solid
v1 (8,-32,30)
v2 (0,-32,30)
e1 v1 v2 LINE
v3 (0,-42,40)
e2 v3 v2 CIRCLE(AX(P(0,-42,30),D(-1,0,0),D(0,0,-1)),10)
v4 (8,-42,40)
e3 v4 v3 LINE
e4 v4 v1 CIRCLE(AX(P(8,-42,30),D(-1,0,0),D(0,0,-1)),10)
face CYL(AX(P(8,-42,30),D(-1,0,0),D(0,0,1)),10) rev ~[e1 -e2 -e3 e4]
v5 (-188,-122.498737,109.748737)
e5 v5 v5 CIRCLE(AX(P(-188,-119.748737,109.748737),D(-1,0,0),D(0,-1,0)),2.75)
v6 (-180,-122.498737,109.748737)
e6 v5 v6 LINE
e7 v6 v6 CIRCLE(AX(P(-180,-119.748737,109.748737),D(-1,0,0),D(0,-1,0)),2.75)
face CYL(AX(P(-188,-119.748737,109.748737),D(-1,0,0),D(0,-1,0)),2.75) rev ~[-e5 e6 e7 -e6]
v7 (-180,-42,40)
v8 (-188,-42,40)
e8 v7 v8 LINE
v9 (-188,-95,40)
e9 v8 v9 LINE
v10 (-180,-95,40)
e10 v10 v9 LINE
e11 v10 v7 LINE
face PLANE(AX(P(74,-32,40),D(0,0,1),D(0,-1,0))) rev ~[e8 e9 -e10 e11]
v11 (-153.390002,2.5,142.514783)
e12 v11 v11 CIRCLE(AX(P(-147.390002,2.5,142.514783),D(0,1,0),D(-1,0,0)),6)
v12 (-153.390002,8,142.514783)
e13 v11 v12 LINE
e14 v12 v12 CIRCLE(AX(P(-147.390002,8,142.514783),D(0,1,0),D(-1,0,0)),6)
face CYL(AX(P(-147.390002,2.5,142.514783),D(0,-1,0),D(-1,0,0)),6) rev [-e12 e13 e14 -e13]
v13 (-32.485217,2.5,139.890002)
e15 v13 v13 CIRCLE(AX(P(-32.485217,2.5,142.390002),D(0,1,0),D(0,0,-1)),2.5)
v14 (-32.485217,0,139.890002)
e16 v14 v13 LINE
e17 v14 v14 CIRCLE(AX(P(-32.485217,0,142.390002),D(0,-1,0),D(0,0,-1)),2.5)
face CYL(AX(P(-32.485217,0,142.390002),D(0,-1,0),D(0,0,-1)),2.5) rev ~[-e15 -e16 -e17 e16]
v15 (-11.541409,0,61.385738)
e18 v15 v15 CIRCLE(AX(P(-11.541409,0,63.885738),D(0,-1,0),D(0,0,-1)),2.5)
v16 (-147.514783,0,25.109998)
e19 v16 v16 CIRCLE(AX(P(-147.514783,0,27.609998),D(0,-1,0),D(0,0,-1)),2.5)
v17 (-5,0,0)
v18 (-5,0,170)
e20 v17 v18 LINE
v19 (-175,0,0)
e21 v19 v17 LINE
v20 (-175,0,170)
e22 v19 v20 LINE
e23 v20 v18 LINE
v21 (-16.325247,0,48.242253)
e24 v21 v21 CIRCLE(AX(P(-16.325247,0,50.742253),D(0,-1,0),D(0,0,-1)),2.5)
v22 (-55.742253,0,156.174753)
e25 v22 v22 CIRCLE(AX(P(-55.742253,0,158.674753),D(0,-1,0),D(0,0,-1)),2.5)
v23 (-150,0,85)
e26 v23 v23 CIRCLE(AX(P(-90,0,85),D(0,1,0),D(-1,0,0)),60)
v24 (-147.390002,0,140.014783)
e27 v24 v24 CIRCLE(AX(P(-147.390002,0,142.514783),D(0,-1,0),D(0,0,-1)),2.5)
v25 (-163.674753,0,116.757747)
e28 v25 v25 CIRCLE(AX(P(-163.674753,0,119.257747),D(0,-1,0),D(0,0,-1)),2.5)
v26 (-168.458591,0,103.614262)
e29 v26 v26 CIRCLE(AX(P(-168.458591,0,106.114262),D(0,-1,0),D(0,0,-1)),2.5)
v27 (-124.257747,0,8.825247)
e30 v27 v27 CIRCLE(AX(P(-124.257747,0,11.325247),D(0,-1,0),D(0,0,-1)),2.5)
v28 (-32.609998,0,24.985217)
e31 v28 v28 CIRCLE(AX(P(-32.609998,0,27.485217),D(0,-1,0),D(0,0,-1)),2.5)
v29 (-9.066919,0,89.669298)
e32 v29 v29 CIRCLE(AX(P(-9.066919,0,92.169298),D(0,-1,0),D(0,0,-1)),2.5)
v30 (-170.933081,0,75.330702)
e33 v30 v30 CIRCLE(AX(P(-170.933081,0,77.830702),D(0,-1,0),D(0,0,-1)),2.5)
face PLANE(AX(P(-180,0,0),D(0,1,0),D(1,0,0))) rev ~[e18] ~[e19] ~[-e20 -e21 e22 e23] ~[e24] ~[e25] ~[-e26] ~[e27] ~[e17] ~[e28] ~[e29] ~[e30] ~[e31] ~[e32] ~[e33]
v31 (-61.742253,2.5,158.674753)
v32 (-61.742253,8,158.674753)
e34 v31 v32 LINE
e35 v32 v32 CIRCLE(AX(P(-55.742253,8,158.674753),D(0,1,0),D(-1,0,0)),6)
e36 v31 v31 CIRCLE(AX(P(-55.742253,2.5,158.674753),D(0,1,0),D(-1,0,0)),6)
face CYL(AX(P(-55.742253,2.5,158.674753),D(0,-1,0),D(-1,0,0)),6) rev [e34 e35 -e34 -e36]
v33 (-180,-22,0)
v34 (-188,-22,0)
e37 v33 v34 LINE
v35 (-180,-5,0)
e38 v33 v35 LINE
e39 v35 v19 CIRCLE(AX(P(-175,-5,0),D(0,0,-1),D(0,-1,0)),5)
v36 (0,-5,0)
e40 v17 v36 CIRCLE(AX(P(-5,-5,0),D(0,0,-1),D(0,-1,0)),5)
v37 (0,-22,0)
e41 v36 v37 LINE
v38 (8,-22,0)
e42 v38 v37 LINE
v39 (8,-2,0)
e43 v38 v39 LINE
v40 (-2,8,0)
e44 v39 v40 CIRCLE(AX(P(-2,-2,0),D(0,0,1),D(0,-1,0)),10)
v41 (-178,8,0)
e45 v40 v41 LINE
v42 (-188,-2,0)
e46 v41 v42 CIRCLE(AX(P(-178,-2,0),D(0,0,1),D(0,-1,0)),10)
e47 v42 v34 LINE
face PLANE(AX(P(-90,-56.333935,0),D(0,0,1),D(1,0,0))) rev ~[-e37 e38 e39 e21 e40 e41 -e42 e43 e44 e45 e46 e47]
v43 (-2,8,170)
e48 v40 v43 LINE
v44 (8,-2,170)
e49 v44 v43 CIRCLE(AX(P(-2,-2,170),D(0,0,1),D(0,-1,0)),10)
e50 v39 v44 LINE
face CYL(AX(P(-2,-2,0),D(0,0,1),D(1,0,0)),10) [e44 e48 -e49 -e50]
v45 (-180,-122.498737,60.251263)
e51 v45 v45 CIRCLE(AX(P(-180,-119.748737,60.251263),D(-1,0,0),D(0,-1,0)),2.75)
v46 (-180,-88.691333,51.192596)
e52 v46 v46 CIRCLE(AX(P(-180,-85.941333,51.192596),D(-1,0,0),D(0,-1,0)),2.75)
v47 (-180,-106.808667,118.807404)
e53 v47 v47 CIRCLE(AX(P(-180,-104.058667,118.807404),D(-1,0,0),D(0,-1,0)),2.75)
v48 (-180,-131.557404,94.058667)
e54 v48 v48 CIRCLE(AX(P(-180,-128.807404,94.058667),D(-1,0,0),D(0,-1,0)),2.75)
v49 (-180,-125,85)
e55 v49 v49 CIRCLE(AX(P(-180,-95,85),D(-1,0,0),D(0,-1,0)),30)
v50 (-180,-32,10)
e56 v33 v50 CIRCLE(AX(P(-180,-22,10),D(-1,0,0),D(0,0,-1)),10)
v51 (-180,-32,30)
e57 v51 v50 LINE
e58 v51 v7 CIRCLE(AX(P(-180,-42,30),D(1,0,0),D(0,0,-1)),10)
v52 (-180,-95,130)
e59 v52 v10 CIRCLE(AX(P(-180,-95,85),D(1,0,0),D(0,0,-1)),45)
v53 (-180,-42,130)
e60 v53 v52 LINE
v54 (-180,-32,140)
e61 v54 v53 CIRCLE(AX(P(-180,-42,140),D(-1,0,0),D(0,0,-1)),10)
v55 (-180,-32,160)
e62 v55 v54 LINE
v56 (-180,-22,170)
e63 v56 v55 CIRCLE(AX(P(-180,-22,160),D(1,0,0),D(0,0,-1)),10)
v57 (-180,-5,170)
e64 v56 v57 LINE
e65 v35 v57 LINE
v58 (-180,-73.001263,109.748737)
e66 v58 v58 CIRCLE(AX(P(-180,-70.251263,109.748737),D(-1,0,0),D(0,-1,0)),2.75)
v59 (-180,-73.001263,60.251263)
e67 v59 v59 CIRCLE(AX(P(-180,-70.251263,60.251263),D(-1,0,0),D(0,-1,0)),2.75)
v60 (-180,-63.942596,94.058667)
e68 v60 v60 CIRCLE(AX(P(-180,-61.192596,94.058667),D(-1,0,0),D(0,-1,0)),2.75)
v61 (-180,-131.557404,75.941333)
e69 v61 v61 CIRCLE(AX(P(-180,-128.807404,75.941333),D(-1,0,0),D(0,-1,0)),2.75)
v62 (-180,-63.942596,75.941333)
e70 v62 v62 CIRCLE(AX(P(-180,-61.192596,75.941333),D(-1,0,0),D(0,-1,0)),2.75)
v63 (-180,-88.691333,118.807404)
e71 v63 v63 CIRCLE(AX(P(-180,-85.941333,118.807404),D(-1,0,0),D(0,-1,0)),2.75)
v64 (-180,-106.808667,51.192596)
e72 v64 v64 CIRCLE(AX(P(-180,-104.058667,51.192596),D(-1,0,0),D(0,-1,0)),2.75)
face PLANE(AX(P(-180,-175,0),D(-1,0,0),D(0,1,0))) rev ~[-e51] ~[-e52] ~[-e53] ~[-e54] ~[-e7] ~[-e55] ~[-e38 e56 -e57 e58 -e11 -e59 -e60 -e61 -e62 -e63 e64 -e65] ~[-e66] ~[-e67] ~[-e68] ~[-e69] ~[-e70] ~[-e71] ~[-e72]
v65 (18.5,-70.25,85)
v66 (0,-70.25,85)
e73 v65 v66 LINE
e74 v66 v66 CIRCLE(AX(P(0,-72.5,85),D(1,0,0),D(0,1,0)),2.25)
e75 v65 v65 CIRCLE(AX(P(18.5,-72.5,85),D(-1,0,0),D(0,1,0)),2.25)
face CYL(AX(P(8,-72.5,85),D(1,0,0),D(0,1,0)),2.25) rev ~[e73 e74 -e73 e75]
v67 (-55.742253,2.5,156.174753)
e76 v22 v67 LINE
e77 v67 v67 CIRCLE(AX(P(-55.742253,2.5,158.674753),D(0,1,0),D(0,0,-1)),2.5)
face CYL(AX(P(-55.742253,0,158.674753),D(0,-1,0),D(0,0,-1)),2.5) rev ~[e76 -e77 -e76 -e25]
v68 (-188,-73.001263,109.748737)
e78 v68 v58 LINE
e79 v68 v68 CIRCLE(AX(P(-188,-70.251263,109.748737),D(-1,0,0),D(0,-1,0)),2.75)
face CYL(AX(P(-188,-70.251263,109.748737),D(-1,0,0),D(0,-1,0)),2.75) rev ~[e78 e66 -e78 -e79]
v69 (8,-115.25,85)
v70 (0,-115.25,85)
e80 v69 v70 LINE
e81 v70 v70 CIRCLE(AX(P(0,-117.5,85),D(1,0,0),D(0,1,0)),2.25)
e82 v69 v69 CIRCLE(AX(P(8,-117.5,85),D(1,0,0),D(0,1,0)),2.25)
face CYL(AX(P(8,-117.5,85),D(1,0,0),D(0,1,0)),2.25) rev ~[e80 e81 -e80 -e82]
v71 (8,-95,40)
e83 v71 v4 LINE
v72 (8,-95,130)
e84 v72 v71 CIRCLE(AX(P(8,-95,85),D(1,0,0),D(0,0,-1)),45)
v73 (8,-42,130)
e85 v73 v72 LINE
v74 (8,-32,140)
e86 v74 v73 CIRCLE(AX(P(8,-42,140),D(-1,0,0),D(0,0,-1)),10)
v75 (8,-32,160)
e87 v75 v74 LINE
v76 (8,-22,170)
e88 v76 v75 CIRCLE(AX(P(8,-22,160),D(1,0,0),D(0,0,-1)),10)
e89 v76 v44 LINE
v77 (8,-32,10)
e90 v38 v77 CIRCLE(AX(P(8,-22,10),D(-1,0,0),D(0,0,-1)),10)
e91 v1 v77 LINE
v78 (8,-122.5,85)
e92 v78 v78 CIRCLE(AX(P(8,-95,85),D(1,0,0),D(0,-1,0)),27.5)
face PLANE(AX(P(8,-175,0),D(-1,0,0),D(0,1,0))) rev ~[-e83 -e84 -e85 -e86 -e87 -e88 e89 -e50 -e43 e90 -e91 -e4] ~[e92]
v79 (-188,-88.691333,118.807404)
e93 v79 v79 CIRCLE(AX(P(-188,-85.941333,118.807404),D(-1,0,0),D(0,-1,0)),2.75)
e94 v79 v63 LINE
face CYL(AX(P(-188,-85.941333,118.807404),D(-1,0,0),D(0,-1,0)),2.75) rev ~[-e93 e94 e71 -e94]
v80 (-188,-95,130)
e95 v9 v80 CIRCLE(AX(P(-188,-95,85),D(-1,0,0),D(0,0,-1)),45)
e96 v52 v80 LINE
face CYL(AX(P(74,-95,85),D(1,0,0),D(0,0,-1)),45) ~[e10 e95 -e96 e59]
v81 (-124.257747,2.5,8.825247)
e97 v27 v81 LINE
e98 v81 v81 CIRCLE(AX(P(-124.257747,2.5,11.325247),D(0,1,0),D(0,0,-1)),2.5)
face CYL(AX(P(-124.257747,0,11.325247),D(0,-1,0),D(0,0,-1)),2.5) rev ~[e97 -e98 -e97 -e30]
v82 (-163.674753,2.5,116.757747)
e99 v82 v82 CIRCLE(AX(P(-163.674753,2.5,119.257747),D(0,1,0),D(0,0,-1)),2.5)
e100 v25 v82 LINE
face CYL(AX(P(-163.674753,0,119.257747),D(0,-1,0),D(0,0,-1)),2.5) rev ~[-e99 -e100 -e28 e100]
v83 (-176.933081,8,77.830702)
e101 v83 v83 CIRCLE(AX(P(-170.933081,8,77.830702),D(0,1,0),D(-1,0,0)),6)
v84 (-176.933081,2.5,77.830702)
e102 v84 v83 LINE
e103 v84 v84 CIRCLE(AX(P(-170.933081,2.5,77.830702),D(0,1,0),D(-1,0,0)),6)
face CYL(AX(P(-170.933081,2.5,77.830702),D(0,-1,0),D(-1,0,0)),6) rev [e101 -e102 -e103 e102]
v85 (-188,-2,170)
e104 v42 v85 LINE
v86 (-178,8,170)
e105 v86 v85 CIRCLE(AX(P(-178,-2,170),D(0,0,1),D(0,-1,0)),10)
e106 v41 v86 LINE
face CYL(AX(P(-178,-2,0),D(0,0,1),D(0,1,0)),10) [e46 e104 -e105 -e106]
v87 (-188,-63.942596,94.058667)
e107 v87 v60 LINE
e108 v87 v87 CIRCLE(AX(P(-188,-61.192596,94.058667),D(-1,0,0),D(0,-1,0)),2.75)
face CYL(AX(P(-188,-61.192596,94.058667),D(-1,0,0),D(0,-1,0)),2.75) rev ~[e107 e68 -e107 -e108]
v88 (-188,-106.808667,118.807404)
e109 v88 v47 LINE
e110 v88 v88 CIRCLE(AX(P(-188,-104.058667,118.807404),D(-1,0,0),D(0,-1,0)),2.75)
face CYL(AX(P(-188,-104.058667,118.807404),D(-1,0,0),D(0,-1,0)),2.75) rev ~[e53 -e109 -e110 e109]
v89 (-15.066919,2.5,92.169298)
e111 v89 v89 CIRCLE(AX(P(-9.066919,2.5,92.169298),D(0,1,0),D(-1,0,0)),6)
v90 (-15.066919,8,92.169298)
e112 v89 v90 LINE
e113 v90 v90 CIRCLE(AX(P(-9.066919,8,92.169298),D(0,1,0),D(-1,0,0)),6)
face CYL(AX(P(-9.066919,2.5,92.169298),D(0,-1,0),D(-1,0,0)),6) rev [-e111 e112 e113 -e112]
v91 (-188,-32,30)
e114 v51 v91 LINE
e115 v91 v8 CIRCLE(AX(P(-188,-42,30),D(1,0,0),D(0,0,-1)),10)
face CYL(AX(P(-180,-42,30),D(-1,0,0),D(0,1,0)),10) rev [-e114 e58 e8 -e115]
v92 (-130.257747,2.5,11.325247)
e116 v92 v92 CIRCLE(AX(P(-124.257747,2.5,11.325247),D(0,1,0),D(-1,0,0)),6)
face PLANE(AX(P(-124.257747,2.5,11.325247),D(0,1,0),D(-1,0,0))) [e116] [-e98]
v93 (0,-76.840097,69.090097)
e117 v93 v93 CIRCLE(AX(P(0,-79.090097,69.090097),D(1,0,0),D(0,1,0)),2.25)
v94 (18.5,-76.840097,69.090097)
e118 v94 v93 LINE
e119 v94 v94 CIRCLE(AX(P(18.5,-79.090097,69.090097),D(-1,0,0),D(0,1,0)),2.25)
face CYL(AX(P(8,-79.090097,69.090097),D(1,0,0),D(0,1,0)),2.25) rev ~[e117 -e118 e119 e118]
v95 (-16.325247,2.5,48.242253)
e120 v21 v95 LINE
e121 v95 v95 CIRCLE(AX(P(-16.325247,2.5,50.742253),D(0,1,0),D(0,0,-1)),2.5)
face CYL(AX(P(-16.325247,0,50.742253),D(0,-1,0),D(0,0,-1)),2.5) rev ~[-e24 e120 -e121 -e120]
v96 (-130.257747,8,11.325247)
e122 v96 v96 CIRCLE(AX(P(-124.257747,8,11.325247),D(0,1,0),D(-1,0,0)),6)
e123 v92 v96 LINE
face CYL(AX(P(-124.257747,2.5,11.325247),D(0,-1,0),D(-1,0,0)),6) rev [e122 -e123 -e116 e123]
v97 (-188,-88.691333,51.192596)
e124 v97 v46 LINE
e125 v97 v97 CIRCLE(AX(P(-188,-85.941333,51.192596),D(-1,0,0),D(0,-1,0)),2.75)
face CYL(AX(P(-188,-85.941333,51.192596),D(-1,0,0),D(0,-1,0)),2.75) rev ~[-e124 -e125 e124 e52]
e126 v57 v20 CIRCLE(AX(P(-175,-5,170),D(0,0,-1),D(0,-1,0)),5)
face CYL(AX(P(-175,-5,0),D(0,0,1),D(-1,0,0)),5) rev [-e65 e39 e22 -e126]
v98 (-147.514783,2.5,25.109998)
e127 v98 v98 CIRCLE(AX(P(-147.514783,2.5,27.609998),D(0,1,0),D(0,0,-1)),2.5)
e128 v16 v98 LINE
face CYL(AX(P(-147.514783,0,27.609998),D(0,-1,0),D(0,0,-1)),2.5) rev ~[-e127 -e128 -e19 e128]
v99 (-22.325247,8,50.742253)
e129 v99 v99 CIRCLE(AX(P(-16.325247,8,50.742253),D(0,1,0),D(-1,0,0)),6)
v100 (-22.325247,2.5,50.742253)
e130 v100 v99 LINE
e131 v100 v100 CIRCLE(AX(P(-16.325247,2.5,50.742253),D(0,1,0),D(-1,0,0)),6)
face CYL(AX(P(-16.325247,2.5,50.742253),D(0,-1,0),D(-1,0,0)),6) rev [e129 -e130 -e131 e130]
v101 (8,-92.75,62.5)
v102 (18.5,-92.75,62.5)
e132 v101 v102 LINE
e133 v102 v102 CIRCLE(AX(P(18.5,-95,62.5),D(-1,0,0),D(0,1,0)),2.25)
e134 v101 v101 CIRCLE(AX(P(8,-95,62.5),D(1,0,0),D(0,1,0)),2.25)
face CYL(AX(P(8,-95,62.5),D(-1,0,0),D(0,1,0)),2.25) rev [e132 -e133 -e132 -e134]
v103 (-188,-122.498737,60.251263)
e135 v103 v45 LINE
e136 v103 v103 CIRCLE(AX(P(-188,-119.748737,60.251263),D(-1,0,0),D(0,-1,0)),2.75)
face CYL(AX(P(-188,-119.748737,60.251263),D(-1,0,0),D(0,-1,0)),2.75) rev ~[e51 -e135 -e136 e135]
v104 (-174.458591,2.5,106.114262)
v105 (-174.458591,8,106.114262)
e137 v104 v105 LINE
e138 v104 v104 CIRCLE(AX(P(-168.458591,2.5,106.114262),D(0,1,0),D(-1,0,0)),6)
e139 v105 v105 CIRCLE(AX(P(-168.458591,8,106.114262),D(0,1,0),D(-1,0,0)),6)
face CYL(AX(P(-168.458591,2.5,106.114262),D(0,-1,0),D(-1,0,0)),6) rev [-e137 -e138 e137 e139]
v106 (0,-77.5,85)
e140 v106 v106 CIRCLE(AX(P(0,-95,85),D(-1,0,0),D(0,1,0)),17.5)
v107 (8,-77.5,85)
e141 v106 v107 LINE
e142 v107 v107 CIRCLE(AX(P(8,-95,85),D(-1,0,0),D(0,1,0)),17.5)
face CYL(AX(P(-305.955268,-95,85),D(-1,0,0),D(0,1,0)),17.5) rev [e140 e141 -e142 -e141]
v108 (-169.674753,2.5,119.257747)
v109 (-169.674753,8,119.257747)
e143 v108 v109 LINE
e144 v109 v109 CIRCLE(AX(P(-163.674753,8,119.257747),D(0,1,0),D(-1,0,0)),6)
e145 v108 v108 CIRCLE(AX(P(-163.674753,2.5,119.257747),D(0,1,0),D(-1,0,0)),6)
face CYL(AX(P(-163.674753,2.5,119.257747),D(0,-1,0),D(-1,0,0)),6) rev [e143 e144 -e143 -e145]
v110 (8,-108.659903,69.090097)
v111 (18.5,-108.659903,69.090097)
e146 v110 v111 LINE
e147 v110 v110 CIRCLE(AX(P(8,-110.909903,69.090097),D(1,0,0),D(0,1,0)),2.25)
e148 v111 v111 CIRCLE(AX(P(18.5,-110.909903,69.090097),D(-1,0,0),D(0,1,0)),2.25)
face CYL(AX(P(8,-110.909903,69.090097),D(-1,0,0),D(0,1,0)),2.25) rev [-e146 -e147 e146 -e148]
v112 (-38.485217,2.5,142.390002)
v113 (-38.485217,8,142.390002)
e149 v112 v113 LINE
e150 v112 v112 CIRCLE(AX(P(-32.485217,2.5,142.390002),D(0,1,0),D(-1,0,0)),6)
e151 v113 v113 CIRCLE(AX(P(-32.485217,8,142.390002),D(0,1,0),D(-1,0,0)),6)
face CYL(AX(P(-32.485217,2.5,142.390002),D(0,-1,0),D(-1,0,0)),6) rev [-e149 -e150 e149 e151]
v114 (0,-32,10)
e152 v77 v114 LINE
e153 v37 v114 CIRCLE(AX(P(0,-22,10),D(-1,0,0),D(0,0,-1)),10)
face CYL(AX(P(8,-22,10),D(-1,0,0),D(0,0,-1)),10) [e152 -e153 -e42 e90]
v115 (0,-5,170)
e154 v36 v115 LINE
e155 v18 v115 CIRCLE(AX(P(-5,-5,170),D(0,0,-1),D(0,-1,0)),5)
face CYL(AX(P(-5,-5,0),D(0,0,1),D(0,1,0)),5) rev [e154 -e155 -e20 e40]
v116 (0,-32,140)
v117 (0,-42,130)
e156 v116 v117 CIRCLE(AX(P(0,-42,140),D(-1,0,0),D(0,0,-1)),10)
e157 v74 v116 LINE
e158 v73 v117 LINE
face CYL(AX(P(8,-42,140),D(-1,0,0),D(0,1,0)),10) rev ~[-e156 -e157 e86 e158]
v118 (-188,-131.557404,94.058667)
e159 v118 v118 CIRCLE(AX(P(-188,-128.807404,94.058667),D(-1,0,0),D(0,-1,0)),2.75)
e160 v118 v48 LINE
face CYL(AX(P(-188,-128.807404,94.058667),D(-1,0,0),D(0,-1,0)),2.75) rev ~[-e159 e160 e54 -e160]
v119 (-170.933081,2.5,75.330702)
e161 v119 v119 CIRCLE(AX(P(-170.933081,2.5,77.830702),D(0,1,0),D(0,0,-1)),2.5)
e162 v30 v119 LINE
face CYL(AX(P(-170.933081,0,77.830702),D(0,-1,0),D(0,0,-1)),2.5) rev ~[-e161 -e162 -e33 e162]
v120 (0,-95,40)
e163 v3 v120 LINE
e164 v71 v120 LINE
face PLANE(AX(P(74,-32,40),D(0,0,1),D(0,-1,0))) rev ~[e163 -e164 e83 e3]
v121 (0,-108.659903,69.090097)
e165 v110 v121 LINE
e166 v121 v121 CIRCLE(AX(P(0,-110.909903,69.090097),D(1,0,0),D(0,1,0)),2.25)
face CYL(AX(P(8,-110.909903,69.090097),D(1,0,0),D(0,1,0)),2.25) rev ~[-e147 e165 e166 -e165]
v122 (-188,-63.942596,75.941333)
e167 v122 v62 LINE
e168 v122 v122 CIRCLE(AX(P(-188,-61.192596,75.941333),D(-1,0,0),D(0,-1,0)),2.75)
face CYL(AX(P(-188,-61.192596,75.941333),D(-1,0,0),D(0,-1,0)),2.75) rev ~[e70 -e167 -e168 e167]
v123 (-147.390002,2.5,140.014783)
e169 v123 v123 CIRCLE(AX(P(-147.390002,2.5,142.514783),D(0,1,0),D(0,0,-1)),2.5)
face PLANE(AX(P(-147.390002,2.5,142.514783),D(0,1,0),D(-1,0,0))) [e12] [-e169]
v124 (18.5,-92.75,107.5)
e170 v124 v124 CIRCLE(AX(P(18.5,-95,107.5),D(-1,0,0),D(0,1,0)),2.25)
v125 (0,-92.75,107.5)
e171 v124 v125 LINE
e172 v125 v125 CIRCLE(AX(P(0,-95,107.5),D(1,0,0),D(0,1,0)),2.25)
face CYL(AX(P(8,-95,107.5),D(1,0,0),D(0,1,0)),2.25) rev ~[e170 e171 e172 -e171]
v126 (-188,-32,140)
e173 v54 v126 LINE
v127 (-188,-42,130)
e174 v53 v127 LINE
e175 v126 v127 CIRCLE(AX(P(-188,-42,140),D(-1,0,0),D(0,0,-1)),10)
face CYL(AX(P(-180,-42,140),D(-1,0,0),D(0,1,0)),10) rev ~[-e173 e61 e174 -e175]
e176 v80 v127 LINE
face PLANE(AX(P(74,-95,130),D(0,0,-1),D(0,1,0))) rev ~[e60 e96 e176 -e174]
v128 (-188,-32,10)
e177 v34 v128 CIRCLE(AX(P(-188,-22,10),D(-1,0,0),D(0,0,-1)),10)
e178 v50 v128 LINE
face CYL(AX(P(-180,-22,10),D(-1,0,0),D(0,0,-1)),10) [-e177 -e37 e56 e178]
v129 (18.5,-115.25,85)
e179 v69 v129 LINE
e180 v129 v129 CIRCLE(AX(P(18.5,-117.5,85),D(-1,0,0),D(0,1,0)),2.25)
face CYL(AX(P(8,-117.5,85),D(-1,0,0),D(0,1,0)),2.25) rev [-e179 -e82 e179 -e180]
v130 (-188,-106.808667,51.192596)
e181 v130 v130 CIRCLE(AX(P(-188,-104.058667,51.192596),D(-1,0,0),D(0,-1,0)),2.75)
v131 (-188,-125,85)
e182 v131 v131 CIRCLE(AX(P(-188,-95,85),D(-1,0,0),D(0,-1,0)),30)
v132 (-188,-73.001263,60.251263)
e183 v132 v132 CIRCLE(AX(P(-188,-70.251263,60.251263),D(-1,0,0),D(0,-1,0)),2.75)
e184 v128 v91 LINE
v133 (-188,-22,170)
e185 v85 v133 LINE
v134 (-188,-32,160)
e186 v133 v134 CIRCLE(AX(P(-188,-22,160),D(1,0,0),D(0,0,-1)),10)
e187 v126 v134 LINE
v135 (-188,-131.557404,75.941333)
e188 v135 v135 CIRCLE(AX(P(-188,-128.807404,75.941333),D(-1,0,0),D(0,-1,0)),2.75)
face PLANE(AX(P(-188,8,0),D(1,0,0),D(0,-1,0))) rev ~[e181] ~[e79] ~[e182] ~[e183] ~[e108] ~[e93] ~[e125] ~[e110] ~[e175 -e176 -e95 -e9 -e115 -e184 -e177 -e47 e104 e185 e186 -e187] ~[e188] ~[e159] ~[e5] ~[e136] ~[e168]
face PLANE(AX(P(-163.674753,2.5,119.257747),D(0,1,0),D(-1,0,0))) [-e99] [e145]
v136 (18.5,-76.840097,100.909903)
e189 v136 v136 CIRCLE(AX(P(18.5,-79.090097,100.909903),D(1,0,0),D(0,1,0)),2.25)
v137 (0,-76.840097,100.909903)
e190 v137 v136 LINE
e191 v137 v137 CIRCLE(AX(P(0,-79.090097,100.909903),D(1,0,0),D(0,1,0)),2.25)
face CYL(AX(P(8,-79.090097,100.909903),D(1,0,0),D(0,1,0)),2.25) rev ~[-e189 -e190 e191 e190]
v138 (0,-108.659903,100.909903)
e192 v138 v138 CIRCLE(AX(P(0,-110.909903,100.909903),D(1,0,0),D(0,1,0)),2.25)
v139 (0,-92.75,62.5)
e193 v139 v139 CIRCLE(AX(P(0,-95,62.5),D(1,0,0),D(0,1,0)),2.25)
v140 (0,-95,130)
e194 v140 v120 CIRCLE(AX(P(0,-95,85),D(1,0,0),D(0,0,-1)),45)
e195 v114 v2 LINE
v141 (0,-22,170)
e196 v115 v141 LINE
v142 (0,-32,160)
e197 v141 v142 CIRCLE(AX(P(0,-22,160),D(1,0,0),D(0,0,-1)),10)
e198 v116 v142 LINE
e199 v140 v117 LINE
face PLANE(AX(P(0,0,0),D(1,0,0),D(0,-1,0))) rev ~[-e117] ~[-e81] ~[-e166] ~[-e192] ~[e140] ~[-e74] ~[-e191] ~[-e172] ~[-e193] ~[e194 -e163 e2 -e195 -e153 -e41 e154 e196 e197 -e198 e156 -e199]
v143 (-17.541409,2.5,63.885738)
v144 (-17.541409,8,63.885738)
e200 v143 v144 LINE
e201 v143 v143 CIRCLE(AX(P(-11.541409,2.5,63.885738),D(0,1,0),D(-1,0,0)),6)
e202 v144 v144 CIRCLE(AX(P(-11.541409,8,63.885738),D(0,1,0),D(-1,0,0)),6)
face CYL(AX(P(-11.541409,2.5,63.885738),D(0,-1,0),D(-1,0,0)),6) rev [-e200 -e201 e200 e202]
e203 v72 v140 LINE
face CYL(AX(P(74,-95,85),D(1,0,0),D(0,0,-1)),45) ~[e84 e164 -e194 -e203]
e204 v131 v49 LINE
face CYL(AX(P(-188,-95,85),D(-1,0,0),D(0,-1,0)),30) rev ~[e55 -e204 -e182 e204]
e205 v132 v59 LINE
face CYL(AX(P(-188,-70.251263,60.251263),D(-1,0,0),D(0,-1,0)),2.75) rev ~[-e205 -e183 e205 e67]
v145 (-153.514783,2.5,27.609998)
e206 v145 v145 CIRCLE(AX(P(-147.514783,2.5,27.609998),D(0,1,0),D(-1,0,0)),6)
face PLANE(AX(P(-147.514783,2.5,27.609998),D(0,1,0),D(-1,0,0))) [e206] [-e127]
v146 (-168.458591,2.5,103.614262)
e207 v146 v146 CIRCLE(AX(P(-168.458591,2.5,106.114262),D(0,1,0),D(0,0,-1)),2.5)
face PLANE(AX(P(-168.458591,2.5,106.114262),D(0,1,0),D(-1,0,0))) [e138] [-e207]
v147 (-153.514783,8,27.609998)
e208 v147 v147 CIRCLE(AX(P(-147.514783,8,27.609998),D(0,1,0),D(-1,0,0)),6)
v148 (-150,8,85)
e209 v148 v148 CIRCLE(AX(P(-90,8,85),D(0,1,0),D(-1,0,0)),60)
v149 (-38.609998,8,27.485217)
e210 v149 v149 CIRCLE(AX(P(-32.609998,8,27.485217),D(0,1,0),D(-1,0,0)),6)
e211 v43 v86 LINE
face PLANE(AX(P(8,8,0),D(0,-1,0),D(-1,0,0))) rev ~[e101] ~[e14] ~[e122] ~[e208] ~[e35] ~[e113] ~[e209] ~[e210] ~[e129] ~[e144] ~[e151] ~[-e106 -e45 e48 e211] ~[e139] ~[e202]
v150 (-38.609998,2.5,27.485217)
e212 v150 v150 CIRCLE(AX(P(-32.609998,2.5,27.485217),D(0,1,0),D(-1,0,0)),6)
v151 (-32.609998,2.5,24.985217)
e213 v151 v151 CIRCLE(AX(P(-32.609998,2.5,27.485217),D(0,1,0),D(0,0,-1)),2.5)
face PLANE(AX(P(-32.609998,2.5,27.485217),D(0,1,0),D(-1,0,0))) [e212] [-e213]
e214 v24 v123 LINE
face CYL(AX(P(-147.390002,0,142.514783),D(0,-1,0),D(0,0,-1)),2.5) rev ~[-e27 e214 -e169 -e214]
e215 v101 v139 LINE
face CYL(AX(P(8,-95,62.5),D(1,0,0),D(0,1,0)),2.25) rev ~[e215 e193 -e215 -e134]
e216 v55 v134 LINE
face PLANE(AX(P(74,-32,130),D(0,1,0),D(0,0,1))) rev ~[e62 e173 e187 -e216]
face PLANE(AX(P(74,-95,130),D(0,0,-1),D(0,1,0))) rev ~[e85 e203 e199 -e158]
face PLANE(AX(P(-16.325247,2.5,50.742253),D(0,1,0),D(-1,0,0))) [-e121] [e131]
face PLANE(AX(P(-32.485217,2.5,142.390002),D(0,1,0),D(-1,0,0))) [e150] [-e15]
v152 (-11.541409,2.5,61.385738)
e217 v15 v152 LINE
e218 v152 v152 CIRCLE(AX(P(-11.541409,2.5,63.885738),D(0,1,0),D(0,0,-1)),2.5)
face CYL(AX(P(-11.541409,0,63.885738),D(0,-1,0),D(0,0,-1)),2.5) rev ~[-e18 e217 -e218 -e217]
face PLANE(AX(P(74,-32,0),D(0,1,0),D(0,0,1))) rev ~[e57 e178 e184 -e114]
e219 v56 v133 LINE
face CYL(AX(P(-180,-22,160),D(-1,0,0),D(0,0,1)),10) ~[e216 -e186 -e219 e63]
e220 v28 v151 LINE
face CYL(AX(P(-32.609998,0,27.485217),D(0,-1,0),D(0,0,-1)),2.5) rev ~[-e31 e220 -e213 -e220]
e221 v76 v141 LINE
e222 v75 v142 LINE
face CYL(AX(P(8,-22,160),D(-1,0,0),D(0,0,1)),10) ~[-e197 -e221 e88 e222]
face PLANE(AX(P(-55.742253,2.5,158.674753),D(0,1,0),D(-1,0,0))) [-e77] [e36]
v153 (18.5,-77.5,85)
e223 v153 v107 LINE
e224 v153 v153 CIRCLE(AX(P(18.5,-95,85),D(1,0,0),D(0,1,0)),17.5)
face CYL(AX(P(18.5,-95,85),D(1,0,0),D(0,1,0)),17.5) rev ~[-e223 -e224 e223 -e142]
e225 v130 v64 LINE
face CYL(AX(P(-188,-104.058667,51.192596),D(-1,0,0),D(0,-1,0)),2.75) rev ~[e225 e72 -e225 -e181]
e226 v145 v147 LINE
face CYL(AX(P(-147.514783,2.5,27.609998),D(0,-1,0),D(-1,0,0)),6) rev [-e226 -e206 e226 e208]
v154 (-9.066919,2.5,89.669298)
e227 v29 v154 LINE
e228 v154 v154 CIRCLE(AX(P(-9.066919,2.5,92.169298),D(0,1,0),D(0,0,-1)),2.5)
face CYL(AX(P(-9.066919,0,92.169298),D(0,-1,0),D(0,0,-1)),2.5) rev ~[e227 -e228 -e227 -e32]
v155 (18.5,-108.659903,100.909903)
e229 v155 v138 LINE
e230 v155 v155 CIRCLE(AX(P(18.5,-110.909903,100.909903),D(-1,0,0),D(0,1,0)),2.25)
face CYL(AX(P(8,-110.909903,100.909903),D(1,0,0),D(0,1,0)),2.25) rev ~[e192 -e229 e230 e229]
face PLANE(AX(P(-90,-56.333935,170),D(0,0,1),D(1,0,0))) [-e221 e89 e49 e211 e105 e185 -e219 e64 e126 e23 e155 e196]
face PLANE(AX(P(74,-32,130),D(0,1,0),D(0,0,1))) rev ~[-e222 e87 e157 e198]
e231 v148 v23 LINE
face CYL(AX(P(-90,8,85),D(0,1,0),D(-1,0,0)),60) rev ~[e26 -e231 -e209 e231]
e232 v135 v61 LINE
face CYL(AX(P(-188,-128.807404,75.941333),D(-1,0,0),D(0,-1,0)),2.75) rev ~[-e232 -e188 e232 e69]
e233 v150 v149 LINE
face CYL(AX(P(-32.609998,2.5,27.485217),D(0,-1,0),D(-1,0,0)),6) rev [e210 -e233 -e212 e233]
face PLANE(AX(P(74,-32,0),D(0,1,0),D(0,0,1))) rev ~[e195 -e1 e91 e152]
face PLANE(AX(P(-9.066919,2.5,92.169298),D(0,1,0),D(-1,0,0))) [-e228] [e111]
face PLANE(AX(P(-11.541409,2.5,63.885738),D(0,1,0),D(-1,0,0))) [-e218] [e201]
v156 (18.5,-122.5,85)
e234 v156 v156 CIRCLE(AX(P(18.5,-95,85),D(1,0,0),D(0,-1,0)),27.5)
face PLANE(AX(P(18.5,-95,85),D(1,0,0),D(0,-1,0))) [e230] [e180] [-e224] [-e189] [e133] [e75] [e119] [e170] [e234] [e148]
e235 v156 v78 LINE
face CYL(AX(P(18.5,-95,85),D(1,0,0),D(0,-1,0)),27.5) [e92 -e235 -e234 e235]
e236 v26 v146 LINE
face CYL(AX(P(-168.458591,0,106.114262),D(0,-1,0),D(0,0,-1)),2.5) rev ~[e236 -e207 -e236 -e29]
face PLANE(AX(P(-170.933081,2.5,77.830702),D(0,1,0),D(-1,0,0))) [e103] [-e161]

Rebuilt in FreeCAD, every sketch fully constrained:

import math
import FreeCAD as App
import Part
import Sketcher


def edges_at(feature, points):
    """Names of the edges that pass closest to the given points."""
    edges = feature.Shape.Edges
    near = lambda p: min(range(len(edges)), key=lambda i: edges[i].distToShape(Part.Vertex(*p))[0])
    return sorted({f"Edge{near(p) + 1}" for p in points})


def add_polygon(sketch, points):
    """Adds a closed chain of lines whose ends are joined by coincident constraints."""
    first, n = sketch.GeometryCount, len(points)
    for a, b in zip(points, points[1:] + points[:1]):
        sketch.addGeometry(Part.LineSegment(App.Vector(*a, 0), App.Vector(*b, 0)), False)
    for i in range(n):
        sketch.addConstraint(Sketcher.Constraint("Coincident", first + i, 2, first + (i + 1) % n, 1))

doc = App.newDocument("Part")
body = doc.addObject("PartDesign::Body", "Body")

sketch1 = body.newObject("Sketcher::SketchObject", "Sketch")
sketch1.AttachmentSupport = (doc.getObject("XY_Plane"), [""])
sketch1.MapMode = "FlatFace"
add_polygon(sketch1, [(-180, 0), (0, 0), (0, -175), (8, -175), (8, 8), (-188, 8), (-188, -175), (-180, -175)])
sketch1.addConstraint([
    Sketcher.Constraint("Horizontal", 0),
    Sketcher.Constraint("Vertical", 1),
    Sketcher.Constraint("Horizontal", 2),
    Sketcher.Constraint("Vertical", 3),
    Sketcher.Constraint("Horizontal", 4),
    Sketcher.Constraint("Vertical", 5),
    Sketcher.Constraint("Horizontal", 6),
    Sketcher.Constraint("Vertical", 7),
    Sketcher.Constraint("Coincident", 0, 2, -1, 1),
    Sketcher.Constraint("Horizontal", 2, 2, 5, 2),
    Sketcher.Constraint("Equal", 2, 6),
    Sketcher.Constraint("DistanceX", 0, 1, 0, 2, 180.0),
    Sketcher.Constraint("DistanceX", 2, 1, 2, 2, 8.0),
    Sketcher.Constraint("DistanceY", 1, 2, 1, 1, 175.0),
    Sketcher.Constraint("DistanceY", 3, 1, 3, 2, 183.0),
])
pad1 = body.newObject("PartDesign::Pad", "Pad")
pad1.Profile = sketch1
pad1.Length = 170

sketch2 = body.newObject("Sketcher::SketchObject", "Sketch001")
sketch2.AttachmentSupport = (doc.getObject("XZ_Plane"), [""])
sketch2.MapMode = "FlatFace"
sketch2.AttachmentOffset = App.Placement(App.Vector(0, 0, -8), App.Rotation())
sketch2.addGeometry(Part.Circle(App.Vector(-90, 85, 0), App.Vector(0, 0, 1), 60), False)
sketch2.addConstraint([
    Sketcher.Constraint("Diameter", 0, 120.0),
    Sketcher.Constraint("DistanceX", 0, 3, -1, 1, 90.0),
    Sketcher.Constraint("DistanceY", -1, 1, 0, 3, 85.0),
])
pocket1 = body.newObject("PartDesign::Pocket", "Pocket")
pocket1.Profile = sketch2
pocket1.Length = 180
pocket1.Reversed = True

sketch3 = body.newObject("Sketcher::SketchObject", "Sketch002")
sketch3.AttachmentSupport = (doc.getObject("YZ_Plane"), [""])
sketch3.MapMode = "FlatFace"
sketch3.AttachmentOffset = App.Placement(App.Vector(0, 0, 8), App.Rotation())
sketch3.addGeometry(Part.Circle(App.Vector(-95, 85, 0), App.Vector(0, 0, 1), 18), False)
sketch3.addConstraint([
    Sketcher.Constraint("Diameter", 0, 35.0),
    Sketcher.Constraint("DistanceX", 0, 3, -1, 1, 95.0),
    Sketcher.Constraint("DistanceY", -1, 1, 0, 3, 85.0),
])
pocket2 = body.newObject("PartDesign::Pocket", "Pocket001")
pocket2.Profile = sketch3
pocket2.Type = "ThroughAll"
pocket2.Midplane = True
doc.recompute()

fillet = body.newObject("PartDesign::Fillet", "Fillet")
fillet.Base = (pocket2, edges_at(pocket2, [
    (4, -175, 0),
    (4, -175, 170),
    (-184, -175, 170),
    (-184, -175, 0),
]))
fillet.Radius = 70
doc.recompute()

fillet2 = body.newObject("PartDesign::Fillet", "Fillet001")
fillet2.Base = (fillet, edges_at(fillet, [(0, 0, 85), (-180, 0, 85)]))
fillet2.Radius = 5
doc.recompute()

fillet3 = body.newObject("PartDesign::Fillet", "Fillet002")
fillet3.Base = (fillet2, edges_at(fillet2, [(-188, 8, 85), (8, 8, 85)]))
fillet3.Radius = 10

sketch4 = body.newObject("Sketcher::SketchObject", "Sketch003")
sketch4.AttachmentSupport = (doc.getObject("YZ_Plane"), [""])
sketch4.MapMode = "FlatFace"
sketch4.AttachmentOffset = App.Placement(App.Vector(0, 0, -188), App.Rotation())
sketch4.addGeometry(Part.Circle(App.Vector(-95, 85, 0), App.Vector(0, 0, 1), 30), False)
sketch4.addConstraint([
    Sketcher.Constraint("Diameter", 0, 60.0),
    Sketcher.Constraint("DistanceX", 0, 3, -1, 1, 95.0),
    Sketcher.Constraint("DistanceY", -1, 1, 0, 3, 85.0),
])
pocket3 = body.newObject("PartDesign::Pocket", "Pocket002")
pocket3.Profile = sketch4
pocket3.Length = 39
pocket3.Reversed = True

sketch5 = body.newObject("Sketcher::SketchObject", "Sketch004")
sketch5.AttachmentSupport = (doc.getObject("XZ_Plane"), [""])
sketch5.MapMode = "FlatFace"
sketch5.addGeometry([
    Part.Circle(App.Vector(-55.7, 158.7, 0), App.Vector(0, 0, 1), 2.5),
    Part.Circle(App.Vector(-32.5, 142.4, 0), App.Vector(0, 0, 1), 2.5),
    Part.Circle(App.Vector(-9.1, 92.2, 0), App.Vector(0, 0, 1), 2.5),
    Part.Circle(App.Vector(-11.5, 63.9, 0), App.Vector(0, 0, 1), 2.5),
    Part.Circle(App.Vector(-16.3, 50.7, 0), App.Vector(0, 0, 1), 2.5),
    Part.Circle(App.Vector(-32.6, 27.5, 0), App.Vector(0, 0, 1), 2.5),
    Part.Circle(App.Vector(-124.3, 11.3, 0), App.Vector(0, 0, 1), 2.5),
    Part.Circle(App.Vector(-147.5, 27.6, 0), App.Vector(0, 0, 1), 2.5),
    Part.Circle(App.Vector(-170.9, 77.8, 0), App.Vector(0, 0, 1), 2.5),
    Part.Circle(App.Vector(-168.5, 106.1, 0), App.Vector(0, 0, 1), 2.5),
    Part.Circle(App.Vector(-163.7, 119.3, 0), App.Vector(0, 0, 1), 2.5),
    Part.Circle(App.Vector(-147.4, 142.5, 0), App.Vector(0, 0, 1), 2.5),
], False)
sketch5.addConstraint([
    Sketcher.Constraint("Equal", 0, 1),
    Sketcher.Constraint("Equal", 1, 2),
    Sketcher.Constraint("Equal", 2, 3),
    Sketcher.Constraint("Equal", 3, 4),
    Sketcher.Constraint("Equal", 4, 5),
    Sketcher.Constraint("Equal", 5, 6),
    Sketcher.Constraint("Equal", 6, 7),
    Sketcher.Constraint("Equal", 7, 8),
    Sketcher.Constraint("Equal", 8, 9),
    Sketcher.Constraint("Equal", 9, 10),
    Sketcher.Constraint("Equal", 10, 11),
    Sketcher.Constraint("Diameter", 0, 5.0),
    Sketcher.Constraint("DistanceY", -1, 1, 1, 3, 142.390002),
    Sketcher.Constraint("DistanceX", 5, 3, -1, 1, 32.609998),
    Sketcher.Constraint("DistanceY", -1, 1, 7, 3, 27.609998),
    Sketcher.Constraint("DistanceX", 11, 3, -1, 1, 147.390002),
    Sketcher.Constraint("DistanceX", 1, 3, 2, 3, 23.418299),
    Sketcher.Constraint("DistanceY", 4, 3, 0, 3, 107.9325),
    Sketcher.Constraint("DistanceX", 6, 3, 4, 3, 107.9325),
    Sketcher.Constraint("DistanceY", 7, 3, 2, 3, 64.559299),
    Sketcher.Constraint("DistanceX", 8, 3, 7, 3, 23.418299),
    Sketcher.Constraint("DistanceY", 8, 3, 1, 3, 64.559299),
    Sketcher.Constraint("DistanceY", 6, 3, 10, 3, 107.9325),
    Sketcher.Constraint("DistanceX", 10, 3, 0, 3, 107.9325),
    Sketcher.Constraint("DistanceX", 2, 3, -1, 1, 9.066919),
    Sketcher.Constraint("DistanceX", 3, 3, -1, 1, 11.541409),
    Sketcher.Constraint("DistanceY", -1, 1, 3, 3, 63.885738),
    Sketcher.Constraint("DistanceX", 8, 3, -1, 1, 170.933081),
    Sketcher.Constraint("DistanceX", 9, 3, -1, 1, 168.458591),
    Sketcher.Constraint("DistanceY", -1, 1, 9, 3, 106.114262),
    Sketcher.Constraint("DistanceY", 1, 3, 0, 3, 16.284752),
    Sketcher.Constraint("DistanceX", 4, 3, 2, 3, 7.258328),
    Sketcher.Constraint("DistanceY", 5, 3, 3, 3, 36.400521),
    Sketcher.Constraint("DistanceY", 6, 3, 5, 3, 16.159971),
    Sketcher.Constraint("DistanceX", 8, 3, 0, 3, 115.190828),
    Sketcher.Constraint("DistanceY", 9, 3, 11, 3, 36.400521),
])
pocket4 = body.newObject("PartDesign::Pocket", "Pocket003")
pocket4.Profile = sketch5
pocket4.Length = 10

sketch6 = body.newObject("Sketcher::SketchObject", "Sketch005")
sketch6.AttachmentSupport = (doc.getObject("XZ_Plane"), [""])
sketch6.MapMode = "FlatFace"
sketch6.AttachmentOffset = App.Placement(App.Vector(0, 0, -2.5), App.Rotation())
sketch6.addGeometry([
    Part.Circle(App.Vector(-32.5, 142.4, 0), App.Vector(0, 0, 1), 6),
    Part.Circle(App.Vector(-32.5, 142.4, 0), App.Vector(0, 0, 1), 2.5),
    Part.Circle(App.Vector(-55.7, 158.7, 0), App.Vector(0, 0, 1), 6),
    Part.Circle(App.Vector(-55.7, 158.7, 0), App.Vector(0, 0, 1), 2.5),
    Part.Circle(App.Vector(-147.4, 142.5, 0), App.Vector(0, 0, 1), 6),
    Part.Circle(App.Vector(-147.4, 142.5, 0), App.Vector(0, 0, 1), 2.5),
    Part.Circle(App.Vector(-163.7, 119.3, 0), App.Vector(0, 0, 1), 6),
    Part.Circle(App.Vector(-163.7, 119.3, 0), App.Vector(0, 0, 1), 2.5),
    Part.Circle(App.Vector(-168.5, 106.1, 0), App.Vector(0, 0, 1), 6),
    Part.Circle(App.Vector(-168.5, 106.1, 0), App.Vector(0, 0, 1), 2.5),
    Part.Circle(App.Vector(-170.9, 77.8, 0), App.Vector(0, 0, 1), 6),
    Part.Circle(App.Vector(-170.9, 77.8, 0), App.Vector(0, 0, 1), 2.5),
    Part.Circle(App.Vector(-147.5, 27.6, 0), App.Vector(0, 0, 1), 6),
    Part.Circle(App.Vector(-147.5, 27.6, 0), App.Vector(0, 0, 1), 2.5),
    Part.Circle(App.Vector(-124.3, 11.3, 0), App.Vector(0, 0, 1), 6),
    Part.Circle(App.Vector(-124.3, 11.3, 0), App.Vector(0, 0, 1), 2.5),
    Part.Circle(App.Vector(-32.6, 27.5, 0), App.Vector(0, 0, 1), 6),
    Part.Circle(App.Vector(-32.6, 27.5, 0), App.Vector(0, 0, 1), 2.5),
    Part.Circle(App.Vector(-16.3, 50.7, 0), App.Vector(0, 0, 1), 6),
    Part.Circle(App.Vector(-16.3, 50.7, 0), App.Vector(0, 0, 1), 2.5),
    Part.Circle(App.Vector(-11.5, 63.9, 0), App.Vector(0, 0, 1), 6),
    Part.Circle(App.Vector(-11.5, 63.9, 0), App.Vector(0, 0, 1), 2.5),
    Part.Circle(App.Vector(-9.1, 92.2, 0), App.Vector(0, 0, 1), 6),
    Part.Circle(App.Vector(-9.1, 92.2, 0), App.Vector(0, 0, 1), 2.5),
], False)
sketch6.addConstraint([
    Sketcher.Constraint("Coincident", 1, 3, 0, 3),
    Sketcher.Constraint("Coincident", 3, 3, 2, 3),
    Sketcher.Constraint("Coincident", 5, 3, 4, 3),
    Sketcher.Constraint("Coincident", 7, 3, 6, 3),
    Sketcher.Constraint("Coincident", 9, 3, 8, 3),
    Sketcher.Constraint("Coincident", 11, 3, 10, 3),
    Sketcher.Constraint("Coincident", 13, 3, 12, 3),
    Sketcher.Constraint("Coincident", 15, 3, 14, 3),
    Sketcher.Constraint("Coincident", 17, 3, 16, 3),
    Sketcher.Constraint("Coincident", 19, 3, 18, 3),
    Sketcher.Constraint("Coincident", 21, 3, 20, 3),
    Sketcher.Constraint("Coincident", 23, 3, 22, 3),
    Sketcher.Constraint("Equal", 0, 2),
    Sketcher.Constraint("Equal", 1, 3),
    Sketcher.Constraint("Equal", 2, 4),
    Sketcher.Constraint("Equal", 3, 5),
    Sketcher.Constraint("Equal", 4, 6),
    Sketcher.Constraint("Equal", 5, 7),
    Sketcher.Constraint("Equal", 6, 8),
    Sketcher.Constraint("Equal", 7, 9),
    Sketcher.Constraint("Equal", 8, 10),
    Sketcher.Constraint("Equal", 9, 11),
    Sketcher.Constraint("Equal", 10, 12),
    Sketcher.Constraint("Equal", 11, 13),
    Sketcher.Constraint("Equal", 12, 14),
    Sketcher.Constraint("Equal", 13, 15),
    Sketcher.Constraint("Equal", 14, 16),
    Sketcher.Constraint("Equal", 15, 17),
    Sketcher.Constraint("Equal", 16, 18),
    Sketcher.Constraint("Equal", 17, 19),
    Sketcher.Constraint("Equal", 18, 20),
    Sketcher.Constraint("Equal", 19, 21),
    Sketcher.Constraint("Equal", 20, 22),
    Sketcher.Constraint("Equal", 21, 23),
    Sketcher.Constraint("Diameter", 0, 12.0),
    Sketcher.Constraint("Diameter", 1, 5.0),
    Sketcher.Constraint("DistanceY", -1, 1, 0, 3, 142.390002),
    Sketcher.Constraint("DistanceX", 4, 3, -1, 1, 147.390002),
    Sketcher.Constraint("DistanceY", -1, 1, 12, 3, 27.609998),
    Sketcher.Constraint("DistanceX", 16, 3, -1, 1, 32.609998),
    Sketcher.Constraint("DistanceX", 6, 3, 2, 3, 107.9325),
    Sketcher.Constraint("DistanceX", 10, 3, 12, 3, 23.418299),
    Sketcher.Constraint("DistanceX", 14, 3, 18, 3, 107.9325),
    Sketcher.Constraint("DistanceX", 0, 3, 22, 3, 23.418299),
    Sketcher.Constraint("DistanceX", 8, 3, -1, 1, 168.458591),
    Sketcher.Constraint("DistanceY", -1, 1, 8, 3, 106.114262),
    Sketcher.Constraint("DistanceX", 10, 3, -1, 1, 170.933081),
    Sketcher.Constraint("DistanceX", 20, 3, -1, 1, 11.541409),
    Sketcher.Constraint("DistanceY", -1, 1, 20, 3, 63.885738),
    Sketcher.Constraint("DistanceX", 22, 3, -1, 1, 9.066919),
    Sketcher.Constraint("DistanceY", 0, 3, 2, 3, 16.284752),
    Sketcher.Constraint("DistanceX", 4, 3, 2, 3, 91.647749),
    Sketcher.Constraint("DistanceY", 4, 3, 2, 3, 16.159971),
    Sketcher.Constraint("DistanceY", 10, 3, 8, 3, 28.283559),
    Sketcher.Constraint("DistanceY", 12, 3, 6, 3, 91.647749),
    Sketcher.Constraint("DistanceY", 14, 3, 12, 3, 16.284752),
    Sketcher.Constraint("DistanceX", 14, 3, 16, 3, 91.647749),
    Sketcher.Constraint("DistanceY", 14, 3, 16, 3, 16.159971),
    Sketcher.Constraint("DistanceY", 18, 3, 0, 3, 91.647749),
    Sketcher.Constraint("DistanceY", 20, 3, 22, 3, 28.283559),
])
pocket5 = body.newObject("PartDesign::Pocket", "Pocket004")
pocket5.Profile = sketch6
pocket5.Length = 5.5

sketch7 = body.newObject("Sketcher::SketchObject", "Sketch006")
sketch7.AttachmentSupport = (doc.getObject("YZ_Plane"), [""])
sketch7.MapMode = "FlatFace"
sketch7.AttachmentOffset = App.Placement(App.Vector(0, 0, -188), App.Rotation())
sketch7.addGeometry([
    Part.Circle(App.Vector(-128.8, 94.1, 0), App.Vector(0, 0, 1), 2.8),
    Part.Circle(App.Vector(-128.8, 75.9, 0), App.Vector(0, 0, 1), 2.8),
    Part.Circle(App.Vector(-119.7, 60.3, 0), App.Vector(0, 0, 1), 2.8),
    Part.Circle(App.Vector(-104.1, 51.2, 0), App.Vector(0, 0, 1), 2.8),
    Part.Circle(App.Vector(-85.9, 51.2, 0), App.Vector(0, 0, 1), 2.8),
    Part.Circle(App.Vector(-70.3, 60.3, 0), App.Vector(0, 0, 1), 2.8),
    Part.Circle(App.Vector(-61.2, 75.9, 0), App.Vector(0, 0, 1), 2.8),
    Part.Circle(App.Vector(-61.2, 94.1, 0), App.Vector(0, 0, 1), 2.8),
    Part.Circle(App.Vector(-70.3, 109.7, 0), App.Vector(0, 0, 1), 2.8),
    Part.Circle(App.Vector(-85.9, 118.8, 0), App.Vector(0, 0, 1), 2.8),
    Part.Circle(App.Vector(-104.1, 118.8, 0), App.Vector(0, 0, 1), 2.8),
    Part.Circle(App.Vector(-119.7, 109.7, 0), App.Vector(0, 0, 1), 2.8),
], False)
sketch7.addConstraint([
    Sketcher.Constraint("Equal", 0, 1),
    Sketcher.Constraint("Equal", 1, 2),
    Sketcher.Constraint("Equal", 2, 3),
    Sketcher.Constraint("Equal", 3, 4),
    Sketcher.Constraint("Equal", 4, 5),
    Sketcher.Constraint("Equal", 5, 6),
    Sketcher.Constraint("Equal", 6, 7),
    Sketcher.Constraint("Equal", 7, 8),
    Sketcher.Constraint("Equal", 8, 9),
    Sketcher.Constraint("Equal", 9, 10),
    Sketcher.Constraint("Equal", 10, 11),
    Sketcher.Constraint("Horizontal", 3, 3, 4, 3),
    Sketcher.Constraint("Horizontal", 2, 3, 5, 3),
    Sketcher.Constraint("Horizontal", 1, 3, 6, 3),
    Sketcher.Constraint("Horizontal", 0, 3, 7, 3),
    Sketcher.Constraint("Horizontal", 9, 3, 10, 3),
    Sketcher.Constraint("Horizontal", 8, 3, 11, 3),
    Sketcher.Constraint("Vertical", 0, 3, 1, 3),
    Sketcher.Constraint("Vertical", 6, 3, 7, 3),
    Sketcher.Constraint("Vertical", 5, 3, 8, 3),
    Sketcher.Constraint("Vertical", 4, 3, 9, 3),
    Sketcher.Constraint("Vertical", 3, 3, 10, 3),
    Sketcher.Constraint("Vertical", 2, 3, 11, 3),
    Sketcher.Constraint("Diameter", 0, 5.5),
    Sketcher.Constraint("DistanceY", 2, 3, 1, 3, 15.690071),
    Sketcher.Constraint("DistanceX", 2, 3, 3, 3, 15.690071),
    Sketcher.Constraint("DistanceY", 3, 3, 0, 3, 42.86607),
    Sketcher.Constraint("DistanceX", 1, 3, 4, 3, 42.86607),
    Sketcher.Constraint("DistanceX", 4, 3, 5, 3, 15.690071),
    Sketcher.Constraint("DistanceX", 3, 3, 6, 3, 42.86607),
    Sketcher.Constraint("DistanceY", 7, 3, 8, 3, 15.690071),
    Sketcher.Constraint("DistanceY", 6, 3, 9, 3, 42.86607),
    Sketcher.Constraint("DistanceX", 0, 3, -1, 1, 128.807404),
    Sketcher.Constraint("DistanceY", -1, 1, 0, 3, 94.058667),
    Sketcher.Constraint("DistanceY", -1, 1, 1, 3, 75.941333),
    Sketcher.Constraint("DistanceX", 2, 3, -1, 1, 119.748737),
])
pocket6 = body.newObject("PartDesign::Pocket", "Pocket005")
pocket6.Profile = sketch7
pocket6.Length = 10
pocket6.Reversed = True

sketch8 = body.newObject("Sketcher::SketchObject", "Sketch007")
sketch8.AttachmentSupport = (doc.getObject("YZ_Plane"), [""])
sketch8.MapMode = "FlatFace"
sketch8.AttachmentOffset = App.Placement(App.Vector(0, 0, 18.5), App.Rotation())
sketch8.addGeometry([
    Part.Circle(App.Vector(-95, 85, 0), App.Vector(0, 0, 1), 28),
    Part.Circle(App.Vector(-95, 85, 0), App.Vector(0, 0, 1), 18),
], False)
sketch8.addConstraint([
    Sketcher.Constraint("Coincident", 1, 3, 0, 3),
    Sketcher.Constraint("Diameter", 0, 55.0),
    Sketcher.Constraint("Diameter", 1, 35.0),
    Sketcher.Constraint("DistanceX", 0, 3, -1, 1, 95.0),
    Sketcher.Constraint("DistanceY", -1, 1, 0, 3, 85.0),
])
pad2 = body.newObject("PartDesign::Pad", "Pad001")
pad2.Profile = sketch8
pad2.Length = 10.5
pad2.Reversed = True

sketch9 = body.newObject("Sketcher::SketchObject", "Sketch008")
sketch9.AttachmentSupport = (doc.getObject("YZ_Plane"), [""])
sketch9.MapMode = "FlatFace"
sketch9.AttachmentOffset = App.Placement(App.Vector(0, 0, 8), App.Rotation())
sketch9.addGeometry([
    Part.Circle(App.Vector(-72.5, 85, 0), App.Vector(0, 0, 1), 2.2),
    Part.Circle(App.Vector(-79.1, 69.1, 0), App.Vector(0, 0, 1), 2.2),
    Part.Circle(App.Vector(-95, 62.5, 0), App.Vector(0, 0, 1), 2.2),
    Part.Circle(App.Vector(-110.9, 69.1, 0), App.Vector(0, 0, 1), 2.2),
    Part.Circle(App.Vector(-117.5, 85, 0), App.Vector(0, 0, 1), 2.2),
    Part.Circle(App.Vector(-110.9, 100.9, 0), App.Vector(0, 0, 1), 2.2),
    Part.Circle(App.Vector(-95, 107.5, 0), App.Vector(0, 0, 1), 2.2),
    Part.Circle(App.Vector(-79.1, 100.9, 0), App.Vector(0, 0, 1), 2.2),
], False)
sketch9.addConstraint([
    Sketcher.Constraint("Equal", 0, 1),
    Sketcher.Constraint("Equal", 1, 2),
    Sketcher.Constraint("Equal", 2, 3),
    Sketcher.Constraint("Equal", 3, 4),
    Sketcher.Constraint("Equal", 4, 5),
    Sketcher.Constraint("Equal", 5, 6),
    Sketcher.Constraint("Equal", 6, 7),
    Sketcher.Constraint("Horizontal", 1, 3, 3, 3),
    Sketcher.Constraint("Horizontal", 0, 3, 4, 3),
    Sketcher.Constraint("Horizontal", 5, 3, 7, 3),
    Sketcher.Constraint("Vertical", 3, 3, 5, 3),
    Sketcher.Constraint("Vertical", 2, 3, 6, 3),
    Sketcher.Constraint("Vertical", 1, 3, 7, 3),
    Sketcher.Constraint("Diameter", 0, 4.5),
    Sketcher.Constraint("DistanceY", -1, 1, 0, 3, 85.0),
    Sketcher.Constraint("DistanceX", 2, 3, -1, 1, 95.0),
    Sketcher.Constraint("DistanceX", 4, 3, 0, 3, 45.0),
    Sketcher.Constraint("DistanceX", 0, 3, -1, 1, 72.5),
    Sketcher.Constraint("DistanceY", -1, 1, 2, 3, 62.5),
    Sketcher.Constraint("DistanceY", -1, 1, 6, 3, 107.5),
    Sketcher.Constraint("DistanceX", 1, 3, -1, 1, 79.090097),
    Sketcher.Constraint("DistanceY", -1, 1, 1, 3, 69.090097),
    Sketcher.Constraint("DistanceX", 3, 3, -1, 1, 110.909903),
    Sketcher.Constraint("DistanceY", -1, 1, 5, 3, 100.909903),
])
pocket7 = body.newObject("PartDesign::Pocket", "Pocket006")
pocket7.Profile = sketch9
pocket7.Length = 30
pocket7.Midplane = True

sketch10 = body.newObject("Sketcher::SketchObject", "Sketch009")
sketch10.AttachmentSupport = (doc.getObject("YZ_Plane"), [""])
sketch10.MapMode = "FlatFace"
sketch10.AttachmentOffset = App.Placement(App.Vector(0, 0, 74), App.Rotation())
sketch10.addGeometry([
    Part.LineSegment(App.Vector(-32, 40, 0), App.Vector(-32, 0, 0)),
    Part.LineSegment(App.Vector(-32, 0, 0), App.Vector(-105, 0, 0)),
    Part.ArcOfCircle(Part.Circle(App.Vector(-105, 70, 0), App.Vector(0, 0, 1), 70), math.radians(180), math.radians(270)),
    Part.LineSegment(App.Vector(-175, 70, 0), App.Vector(-175, 100, 0)),
    Part.ArcOfCircle(Part.Circle(App.Vector(-105, 100, 0), App.Vector(0, 0, 1), 70), math.radians(90), math.radians(180)),
    Part.LineSegment(App.Vector(-105, 170, 0), App.Vector(-32, 170, 0)),
    Part.LineSegment(App.Vector(-32, 170, 0), App.Vector(-32, 130, 0)),
    Part.LineSegment(App.Vector(-32, 130, 0), App.Vector(-95, 130, 0)),
    Part.ArcOfCircle(Part.Circle(App.Vector(-95, 85, 0), App.Vector(0, 0, 1), 45), math.radians(90), math.radians(270)),
    Part.LineSegment(App.Vector(-95, 40, 0), App.Vector(-32, 40, 0)),
], False)
sketch10.addConstraint([
    Sketcher.Constraint("Coincident", 0, 2, 1, 1),
    Sketcher.Constraint("Tangent", 1, 2, 2, 2),
    Sketcher.Constraint("Tangent", 2, 1, 3, 1),
    Sketcher.Constraint("Tangent", 3, 2, 4, 2),
    Sketcher.Constraint("Tangent", 4, 1, 5, 1),
    Sketcher.Constraint("Coincident", 5, 2, 6, 1),
    Sketcher.Constraint("Coincident", 6, 2, 7, 1),
    Sketcher.Constraint("Tangent", 7, 2, 8, 1),
    Sketcher.Constraint("Tangent", 8, 2, 9, 1),
    Sketcher.Constraint("Coincident", 9, 2, 0, 1),
    Sketcher.Constraint("Vertical", 0),
    Sketcher.Constraint("Horizontal", 1),
    Sketcher.Constraint("Vertical", 3),
    Sketcher.Constraint("Horizontal", 5),
    Sketcher.Constraint("Vertical", 6),
    Sketcher.Constraint("Horizontal", 7),
    Sketcher.Constraint("Horizontal", 9),
    Sketcher.Constraint("Equal", 2, 4),
    Sketcher.Constraint("PointOnObject", 0, 2, -1),
    Sketcher.Constraint("Vertical", 0, 2, 5, 2),
    Sketcher.Constraint("Equal", 0, 6),
    Sketcher.Constraint("Radius", 2, 70.0),
    Sketcher.Constraint("Radius", 8, 45.0),
    Sketcher.Constraint("DistanceX", 1, 2, 1, 1, 73.0),
    Sketcher.Constraint("DistanceX", 7, 2, 7, 1, 63.0),
    Sketcher.Constraint("DistanceY", 0, 2, 0, 1, 40.0),
    Sketcher.Constraint("DistanceX", 2, 3, -1, 1, 105.0),
])
pocket8 = body.newObject("PartDesign::Pocket", "Pocket007")
pocket8.Profile = sketch10
pocket8.Length = 262
doc.recompute()

fillet4 = body.newObject("PartDesign::Fillet", "Fillet003")
fillet4.Base = (pocket8, edges_at(pocket8, [
    (4, -32, 40),
    (-184, -32, 40),
    (4, -32, 130),
    (-184, -32, 130),
    (4, -32, 0),
    (-184, -32, 0),
    (4, -32, 170),
    (-184, -32, 170),
]))
fillet4.Radius = 10

doc.recompute()
